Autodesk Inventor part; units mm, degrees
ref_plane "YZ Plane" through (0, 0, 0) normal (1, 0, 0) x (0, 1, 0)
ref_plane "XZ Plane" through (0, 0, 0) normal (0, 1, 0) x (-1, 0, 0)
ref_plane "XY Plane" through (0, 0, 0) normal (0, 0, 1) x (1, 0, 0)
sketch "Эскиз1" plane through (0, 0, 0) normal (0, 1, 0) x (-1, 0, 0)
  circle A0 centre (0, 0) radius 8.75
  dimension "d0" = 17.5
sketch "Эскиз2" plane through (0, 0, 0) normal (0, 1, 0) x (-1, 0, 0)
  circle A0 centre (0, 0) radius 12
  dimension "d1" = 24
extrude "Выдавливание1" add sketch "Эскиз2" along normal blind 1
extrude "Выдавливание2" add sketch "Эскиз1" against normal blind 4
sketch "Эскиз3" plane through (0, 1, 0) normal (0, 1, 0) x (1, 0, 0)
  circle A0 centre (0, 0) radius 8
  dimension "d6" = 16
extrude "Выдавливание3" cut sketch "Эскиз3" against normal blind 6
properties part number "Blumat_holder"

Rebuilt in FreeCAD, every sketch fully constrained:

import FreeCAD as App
import Part
import Sketcher
Q = App.Units.Quantity

doc = App.newDocument("Part")
body = doc.addObject("PartDesign::Body", "Body")

sketch1 = body.newObject("Sketcher::SketchObject", "Sketch")
sketch1.AttachmentSupport = (doc.getObject("XZ_Plane"), [""])
sketch1.MapMode = "FlatFace"
sketch1.addGeometry(Part.Circle(App.Vector(0, 0, 0), App.Vector(0, 0, 1), 12), False)
sketch1.addConstraint([
    Sketcher.Constraint("Coincident", 0, 3, -1, 1),
    Sketcher.Constraint("Diameter", 0, Q("24 mm")),
])
pad1 = body.newObject("PartDesign::Pad", "Pad")
pad1.Profile = sketch1
pad1.Length = 1
pad1.Reversed = True

sketch2 = body.newObject("Sketcher::SketchObject", "Sketch001")
sketch2.AttachmentSupport = (doc.getObject("XZ_Plane"), [""])
sketch2.MapMode = "FlatFace"
sketch2.addGeometry(Part.Circle(App.Vector(0, 0, 0), App.Vector(0, 0, 1), 9), False)
sketch2.addConstraint([
    Sketcher.Constraint("Coincident", 0, 3, -1, 1),
    Sketcher.Constraint("Diameter", 0, Q("17.5 mm")),
])
pad2 = body.newObject("PartDesign::Pad", "Pad001")
pad2.Profile = sketch2
pad2.Length = 4

sketch3 = body.newObject("Sketcher::SketchObject", "Sketch002")
sketch3.AttachmentSupport = (doc.getObject("XZ_Plane"), [""])
sketch3.MapMode = "FlatFace"
sketch3.AttachmentOffset = App.Placement(App.Vector(0, 0, -1), App.Rotation())
sketch3.addGeometry(Part.Circle(App.Vector(0, 0, 0), App.Vector(0, 0, 1), 8), False)
sketch3.addConstraint([
    Sketcher.Constraint("Coincident", 0, 3, -1, 1),
    Sketcher.Constraint("Diameter", 0, Q("16 mm")),
])
pocket1 = body.newObject("PartDesign::Pocket", "Pocket")
pocket1.Profile = sketch3
pocket1.Length = 6
pocket1.Reversed = True

doc.recompute()
